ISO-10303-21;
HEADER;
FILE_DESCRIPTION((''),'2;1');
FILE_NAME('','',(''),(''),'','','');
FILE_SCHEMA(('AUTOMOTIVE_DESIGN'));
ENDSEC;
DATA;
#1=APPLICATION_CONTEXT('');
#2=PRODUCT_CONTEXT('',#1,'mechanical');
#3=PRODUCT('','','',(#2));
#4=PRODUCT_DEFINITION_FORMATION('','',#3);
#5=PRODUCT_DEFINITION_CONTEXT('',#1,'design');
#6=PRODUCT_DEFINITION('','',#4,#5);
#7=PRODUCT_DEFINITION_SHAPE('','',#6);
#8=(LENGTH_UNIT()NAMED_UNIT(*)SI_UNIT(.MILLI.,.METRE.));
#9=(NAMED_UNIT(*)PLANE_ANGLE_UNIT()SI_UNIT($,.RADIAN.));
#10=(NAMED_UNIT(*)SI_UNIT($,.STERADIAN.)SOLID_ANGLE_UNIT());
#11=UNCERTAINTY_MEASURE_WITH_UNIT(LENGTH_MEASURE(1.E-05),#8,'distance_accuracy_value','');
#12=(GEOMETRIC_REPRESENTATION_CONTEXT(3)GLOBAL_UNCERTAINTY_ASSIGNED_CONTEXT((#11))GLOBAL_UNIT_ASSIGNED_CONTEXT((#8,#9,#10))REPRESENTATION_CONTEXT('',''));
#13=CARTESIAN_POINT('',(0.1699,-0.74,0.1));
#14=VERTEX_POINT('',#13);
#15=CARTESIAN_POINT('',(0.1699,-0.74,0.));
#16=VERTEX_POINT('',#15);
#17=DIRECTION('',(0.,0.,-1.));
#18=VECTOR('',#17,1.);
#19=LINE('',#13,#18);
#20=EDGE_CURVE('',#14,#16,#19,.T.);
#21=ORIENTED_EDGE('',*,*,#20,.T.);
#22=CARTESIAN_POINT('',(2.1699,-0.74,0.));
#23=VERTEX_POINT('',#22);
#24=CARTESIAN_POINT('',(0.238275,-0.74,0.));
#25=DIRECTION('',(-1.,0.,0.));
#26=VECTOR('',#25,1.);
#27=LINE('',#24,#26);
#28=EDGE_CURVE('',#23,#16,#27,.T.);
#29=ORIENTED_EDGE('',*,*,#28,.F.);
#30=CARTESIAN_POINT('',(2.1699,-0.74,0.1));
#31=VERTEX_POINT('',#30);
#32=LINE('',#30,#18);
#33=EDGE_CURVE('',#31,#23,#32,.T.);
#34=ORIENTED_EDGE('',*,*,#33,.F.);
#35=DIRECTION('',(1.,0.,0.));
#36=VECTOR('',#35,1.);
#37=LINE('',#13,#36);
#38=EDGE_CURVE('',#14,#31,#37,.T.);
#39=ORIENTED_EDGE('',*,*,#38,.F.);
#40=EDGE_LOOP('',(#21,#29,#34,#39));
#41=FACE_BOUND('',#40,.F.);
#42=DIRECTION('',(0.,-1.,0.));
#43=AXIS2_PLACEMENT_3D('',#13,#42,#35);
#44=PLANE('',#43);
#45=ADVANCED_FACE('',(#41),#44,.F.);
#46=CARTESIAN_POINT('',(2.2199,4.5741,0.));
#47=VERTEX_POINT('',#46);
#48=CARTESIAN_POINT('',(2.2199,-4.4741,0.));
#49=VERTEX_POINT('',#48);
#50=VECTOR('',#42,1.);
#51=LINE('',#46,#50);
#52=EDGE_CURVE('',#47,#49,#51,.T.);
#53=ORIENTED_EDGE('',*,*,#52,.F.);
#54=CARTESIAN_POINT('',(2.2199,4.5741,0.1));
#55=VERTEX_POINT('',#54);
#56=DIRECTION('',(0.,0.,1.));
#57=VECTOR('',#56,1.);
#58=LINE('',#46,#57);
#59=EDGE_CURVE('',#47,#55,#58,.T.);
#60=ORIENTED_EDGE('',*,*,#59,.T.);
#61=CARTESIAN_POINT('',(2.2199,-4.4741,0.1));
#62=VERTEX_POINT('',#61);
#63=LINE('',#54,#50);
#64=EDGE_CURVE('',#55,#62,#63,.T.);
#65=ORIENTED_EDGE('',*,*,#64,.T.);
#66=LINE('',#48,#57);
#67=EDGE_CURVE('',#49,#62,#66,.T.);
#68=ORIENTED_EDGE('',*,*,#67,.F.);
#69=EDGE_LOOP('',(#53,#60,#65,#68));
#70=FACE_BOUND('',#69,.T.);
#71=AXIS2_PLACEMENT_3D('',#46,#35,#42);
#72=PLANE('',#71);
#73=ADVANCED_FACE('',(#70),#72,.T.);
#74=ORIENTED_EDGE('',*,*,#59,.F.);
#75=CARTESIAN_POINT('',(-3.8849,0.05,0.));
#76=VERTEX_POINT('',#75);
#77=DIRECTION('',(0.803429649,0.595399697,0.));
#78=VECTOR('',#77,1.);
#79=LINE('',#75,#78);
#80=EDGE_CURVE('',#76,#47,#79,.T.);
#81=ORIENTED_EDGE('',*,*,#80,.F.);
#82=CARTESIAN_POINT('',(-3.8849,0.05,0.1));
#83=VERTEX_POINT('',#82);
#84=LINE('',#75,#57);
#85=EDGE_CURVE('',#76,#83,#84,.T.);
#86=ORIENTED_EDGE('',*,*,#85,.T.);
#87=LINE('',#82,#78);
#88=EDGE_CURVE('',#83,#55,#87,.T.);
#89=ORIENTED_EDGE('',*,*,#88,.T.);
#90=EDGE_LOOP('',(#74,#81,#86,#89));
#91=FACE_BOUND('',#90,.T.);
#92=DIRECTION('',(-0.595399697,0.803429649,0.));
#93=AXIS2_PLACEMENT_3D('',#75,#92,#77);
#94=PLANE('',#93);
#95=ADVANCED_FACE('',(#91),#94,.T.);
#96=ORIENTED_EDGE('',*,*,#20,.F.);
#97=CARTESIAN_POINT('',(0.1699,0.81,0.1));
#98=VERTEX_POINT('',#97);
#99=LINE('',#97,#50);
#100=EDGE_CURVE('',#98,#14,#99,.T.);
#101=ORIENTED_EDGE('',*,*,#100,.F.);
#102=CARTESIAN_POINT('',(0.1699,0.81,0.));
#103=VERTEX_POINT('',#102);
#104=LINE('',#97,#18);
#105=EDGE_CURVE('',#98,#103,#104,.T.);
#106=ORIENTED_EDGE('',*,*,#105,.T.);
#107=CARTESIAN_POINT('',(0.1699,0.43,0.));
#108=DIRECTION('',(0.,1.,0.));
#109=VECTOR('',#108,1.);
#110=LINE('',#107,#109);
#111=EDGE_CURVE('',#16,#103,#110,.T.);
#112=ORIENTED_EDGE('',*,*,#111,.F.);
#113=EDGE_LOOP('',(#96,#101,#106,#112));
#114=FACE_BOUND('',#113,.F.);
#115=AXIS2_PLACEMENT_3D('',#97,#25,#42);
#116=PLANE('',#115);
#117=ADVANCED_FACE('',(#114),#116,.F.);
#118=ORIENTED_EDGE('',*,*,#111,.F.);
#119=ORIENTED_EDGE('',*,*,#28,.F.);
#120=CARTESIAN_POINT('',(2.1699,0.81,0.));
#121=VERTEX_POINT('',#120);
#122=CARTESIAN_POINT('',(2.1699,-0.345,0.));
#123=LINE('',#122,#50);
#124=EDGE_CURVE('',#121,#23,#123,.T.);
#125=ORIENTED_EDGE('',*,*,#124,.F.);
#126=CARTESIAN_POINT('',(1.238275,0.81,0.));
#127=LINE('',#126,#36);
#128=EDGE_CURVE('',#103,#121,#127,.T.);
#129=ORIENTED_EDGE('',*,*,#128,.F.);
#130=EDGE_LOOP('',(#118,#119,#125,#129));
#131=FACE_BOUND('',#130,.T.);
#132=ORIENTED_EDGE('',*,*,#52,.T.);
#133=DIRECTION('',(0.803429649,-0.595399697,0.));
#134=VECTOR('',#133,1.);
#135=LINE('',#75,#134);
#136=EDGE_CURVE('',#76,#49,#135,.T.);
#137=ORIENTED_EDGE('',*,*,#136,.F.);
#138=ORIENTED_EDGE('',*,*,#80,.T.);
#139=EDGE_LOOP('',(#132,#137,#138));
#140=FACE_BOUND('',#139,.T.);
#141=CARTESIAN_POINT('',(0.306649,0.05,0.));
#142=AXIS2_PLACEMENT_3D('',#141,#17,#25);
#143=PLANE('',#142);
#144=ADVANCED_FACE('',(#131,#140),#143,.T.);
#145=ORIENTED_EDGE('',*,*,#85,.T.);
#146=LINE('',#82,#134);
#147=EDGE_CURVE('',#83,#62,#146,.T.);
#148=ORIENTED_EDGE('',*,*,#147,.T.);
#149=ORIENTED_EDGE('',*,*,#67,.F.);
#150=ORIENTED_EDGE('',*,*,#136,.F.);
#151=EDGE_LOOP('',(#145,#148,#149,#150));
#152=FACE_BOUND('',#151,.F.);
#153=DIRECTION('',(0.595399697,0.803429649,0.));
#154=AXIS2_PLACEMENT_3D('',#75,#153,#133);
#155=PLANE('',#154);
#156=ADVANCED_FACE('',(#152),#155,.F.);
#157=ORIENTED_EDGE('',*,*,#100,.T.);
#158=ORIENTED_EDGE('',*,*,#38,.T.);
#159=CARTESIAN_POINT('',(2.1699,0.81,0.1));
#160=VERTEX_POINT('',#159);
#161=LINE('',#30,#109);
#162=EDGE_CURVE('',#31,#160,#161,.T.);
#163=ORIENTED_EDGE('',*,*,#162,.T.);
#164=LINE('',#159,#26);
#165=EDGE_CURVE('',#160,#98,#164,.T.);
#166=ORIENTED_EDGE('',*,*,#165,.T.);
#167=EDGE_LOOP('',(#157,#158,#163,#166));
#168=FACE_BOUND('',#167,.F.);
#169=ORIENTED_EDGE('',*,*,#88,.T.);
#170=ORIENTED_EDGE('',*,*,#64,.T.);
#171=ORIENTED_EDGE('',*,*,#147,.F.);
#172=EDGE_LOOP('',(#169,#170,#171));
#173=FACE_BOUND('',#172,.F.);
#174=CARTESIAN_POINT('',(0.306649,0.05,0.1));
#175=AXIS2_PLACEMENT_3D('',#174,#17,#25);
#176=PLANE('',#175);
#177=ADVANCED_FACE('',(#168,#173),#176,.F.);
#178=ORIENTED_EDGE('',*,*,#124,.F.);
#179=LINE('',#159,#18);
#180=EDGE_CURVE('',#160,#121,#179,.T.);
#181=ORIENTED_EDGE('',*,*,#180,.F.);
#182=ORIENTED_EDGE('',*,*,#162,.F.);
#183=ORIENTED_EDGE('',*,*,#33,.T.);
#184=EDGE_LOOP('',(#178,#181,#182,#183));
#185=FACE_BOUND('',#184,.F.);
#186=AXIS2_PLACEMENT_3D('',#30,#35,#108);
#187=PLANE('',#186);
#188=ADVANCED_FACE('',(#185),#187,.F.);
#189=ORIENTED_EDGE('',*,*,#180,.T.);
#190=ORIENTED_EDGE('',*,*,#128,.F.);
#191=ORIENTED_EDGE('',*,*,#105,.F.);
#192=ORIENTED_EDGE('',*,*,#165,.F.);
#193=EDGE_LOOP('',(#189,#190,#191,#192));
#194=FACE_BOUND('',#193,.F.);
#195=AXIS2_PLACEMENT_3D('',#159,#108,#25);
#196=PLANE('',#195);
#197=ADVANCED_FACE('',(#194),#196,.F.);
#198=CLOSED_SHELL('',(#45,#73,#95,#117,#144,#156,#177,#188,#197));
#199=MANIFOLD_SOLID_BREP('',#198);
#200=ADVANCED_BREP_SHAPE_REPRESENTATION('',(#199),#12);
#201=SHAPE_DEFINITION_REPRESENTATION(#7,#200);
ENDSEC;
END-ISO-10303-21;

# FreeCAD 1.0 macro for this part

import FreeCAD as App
import Part
import Sketcher

V = App.Vector
Q = App.Units.Quantity

doc = App.newDocument("Part")
body = doc.addObject("PartDesign::Body", "Body")

sketch1 = body.newObject("Sketcher::SketchObject", "Sketch")
sketch1.AttachmentSupport = (doc.getObject("XY_Plane"), [""])
sketch1.MapMode = "FlatFace"
sketch1.addGeometry([
    Part.LineSegment(V(2, 5, 0), V(-4, 0, 0)),
    Part.LineSegment(V(-4, 0, 0), V(2, -4, 0)),
    Part.LineSegment(V(2, -4, 0), V(2, 5, 0)),
], False)
sketch1.addConstraint([
    Sketcher.Constraint("Coincident", 0, 2, 1, 1),
    Sketcher.Constraint("Coincident", 1, 2, 2, 1),
    Sketcher.Constraint("Coincident", 2, 2, 0, 1),
    Sketcher.Constraint("Vertical", 2),
    Sketcher.Constraint("Equal", 0, 1),
    Sketcher.Constraint("Angle", 0, Q("-143.4589 deg")),
    Sketcher.Constraint("DistanceY", -1, 1, 0, 2, 0.05),
    Sketcher.Constraint("DistanceX", -1, 1, 1, 2, 2.22),
    Sketcher.Constraint("DistanceY", 2, 1, 2, 2, 9.0482),
])
pad1 = body.newObject("PartDesign::Pad", "Pad")
pad1.Profile = sketch1
pad1.Length = 0.1

sketch2 = body.newObject("Sketcher::SketchObject", "Sketch001")
sketch2.AttachmentSupport = (doc.getObject("XY_Plane"), [""])
sketch2.MapMode = "FlatFace"
sketch2.AttachmentOffset = App.Placement(V(0, 0, 0.1), App.Rotation())
sketch2.addGeometry([
    Part.LineSegment(V(0.2, -0.7, 0), V(2.2, -0.7, 0)),
    Part.LineSegment(V(2.2, -0.7, 0), V(2.2, 0.8, 0)),
    Part.LineSegment(V(2.2, 0.8, 0), V(0.2, 0.8, 0)),
    Part.LineSegment(V(0.2, 0.8, 0), V(0.2, -0.7, 0)),
], False)
sketch2.addConstraint([
    Sketcher.Constraint("Coincident", 0, 2, 1, 1),
    Sketcher.Constraint("Coincident", 1, 2, 2, 1),
    Sketcher.Constraint("Coincident", 2, 2, 3, 1),
    Sketcher.Constraint("Coincident", 3, 2, 0, 1),
    Sketcher.Constraint("Horizontal", 0),
    Sketcher.Constraint("Vertical", 1),
    Sketcher.Constraint("Horizontal", 2),
    Sketcher.Constraint("Vertical", 3),
    Sketcher.Constraint("DistanceX", 0, 1, 0, 2, 2.0),
    Sketcher.Constraint("DistanceY", 1, 1, 1, 2, 1.55),
    Sketcher.Constraint("DistanceX", -1, 1, 0, 2, 2.17),
    Sketcher.Constraint("DistanceY", 0, 2, -1, 1, 0.74),
])
pocket1 = body.newObject("PartDesign::Pocket", "Pocket")
pocket1.Profile = sketch2
pocket1.Type = "ThroughAll"

doc.recompute()
